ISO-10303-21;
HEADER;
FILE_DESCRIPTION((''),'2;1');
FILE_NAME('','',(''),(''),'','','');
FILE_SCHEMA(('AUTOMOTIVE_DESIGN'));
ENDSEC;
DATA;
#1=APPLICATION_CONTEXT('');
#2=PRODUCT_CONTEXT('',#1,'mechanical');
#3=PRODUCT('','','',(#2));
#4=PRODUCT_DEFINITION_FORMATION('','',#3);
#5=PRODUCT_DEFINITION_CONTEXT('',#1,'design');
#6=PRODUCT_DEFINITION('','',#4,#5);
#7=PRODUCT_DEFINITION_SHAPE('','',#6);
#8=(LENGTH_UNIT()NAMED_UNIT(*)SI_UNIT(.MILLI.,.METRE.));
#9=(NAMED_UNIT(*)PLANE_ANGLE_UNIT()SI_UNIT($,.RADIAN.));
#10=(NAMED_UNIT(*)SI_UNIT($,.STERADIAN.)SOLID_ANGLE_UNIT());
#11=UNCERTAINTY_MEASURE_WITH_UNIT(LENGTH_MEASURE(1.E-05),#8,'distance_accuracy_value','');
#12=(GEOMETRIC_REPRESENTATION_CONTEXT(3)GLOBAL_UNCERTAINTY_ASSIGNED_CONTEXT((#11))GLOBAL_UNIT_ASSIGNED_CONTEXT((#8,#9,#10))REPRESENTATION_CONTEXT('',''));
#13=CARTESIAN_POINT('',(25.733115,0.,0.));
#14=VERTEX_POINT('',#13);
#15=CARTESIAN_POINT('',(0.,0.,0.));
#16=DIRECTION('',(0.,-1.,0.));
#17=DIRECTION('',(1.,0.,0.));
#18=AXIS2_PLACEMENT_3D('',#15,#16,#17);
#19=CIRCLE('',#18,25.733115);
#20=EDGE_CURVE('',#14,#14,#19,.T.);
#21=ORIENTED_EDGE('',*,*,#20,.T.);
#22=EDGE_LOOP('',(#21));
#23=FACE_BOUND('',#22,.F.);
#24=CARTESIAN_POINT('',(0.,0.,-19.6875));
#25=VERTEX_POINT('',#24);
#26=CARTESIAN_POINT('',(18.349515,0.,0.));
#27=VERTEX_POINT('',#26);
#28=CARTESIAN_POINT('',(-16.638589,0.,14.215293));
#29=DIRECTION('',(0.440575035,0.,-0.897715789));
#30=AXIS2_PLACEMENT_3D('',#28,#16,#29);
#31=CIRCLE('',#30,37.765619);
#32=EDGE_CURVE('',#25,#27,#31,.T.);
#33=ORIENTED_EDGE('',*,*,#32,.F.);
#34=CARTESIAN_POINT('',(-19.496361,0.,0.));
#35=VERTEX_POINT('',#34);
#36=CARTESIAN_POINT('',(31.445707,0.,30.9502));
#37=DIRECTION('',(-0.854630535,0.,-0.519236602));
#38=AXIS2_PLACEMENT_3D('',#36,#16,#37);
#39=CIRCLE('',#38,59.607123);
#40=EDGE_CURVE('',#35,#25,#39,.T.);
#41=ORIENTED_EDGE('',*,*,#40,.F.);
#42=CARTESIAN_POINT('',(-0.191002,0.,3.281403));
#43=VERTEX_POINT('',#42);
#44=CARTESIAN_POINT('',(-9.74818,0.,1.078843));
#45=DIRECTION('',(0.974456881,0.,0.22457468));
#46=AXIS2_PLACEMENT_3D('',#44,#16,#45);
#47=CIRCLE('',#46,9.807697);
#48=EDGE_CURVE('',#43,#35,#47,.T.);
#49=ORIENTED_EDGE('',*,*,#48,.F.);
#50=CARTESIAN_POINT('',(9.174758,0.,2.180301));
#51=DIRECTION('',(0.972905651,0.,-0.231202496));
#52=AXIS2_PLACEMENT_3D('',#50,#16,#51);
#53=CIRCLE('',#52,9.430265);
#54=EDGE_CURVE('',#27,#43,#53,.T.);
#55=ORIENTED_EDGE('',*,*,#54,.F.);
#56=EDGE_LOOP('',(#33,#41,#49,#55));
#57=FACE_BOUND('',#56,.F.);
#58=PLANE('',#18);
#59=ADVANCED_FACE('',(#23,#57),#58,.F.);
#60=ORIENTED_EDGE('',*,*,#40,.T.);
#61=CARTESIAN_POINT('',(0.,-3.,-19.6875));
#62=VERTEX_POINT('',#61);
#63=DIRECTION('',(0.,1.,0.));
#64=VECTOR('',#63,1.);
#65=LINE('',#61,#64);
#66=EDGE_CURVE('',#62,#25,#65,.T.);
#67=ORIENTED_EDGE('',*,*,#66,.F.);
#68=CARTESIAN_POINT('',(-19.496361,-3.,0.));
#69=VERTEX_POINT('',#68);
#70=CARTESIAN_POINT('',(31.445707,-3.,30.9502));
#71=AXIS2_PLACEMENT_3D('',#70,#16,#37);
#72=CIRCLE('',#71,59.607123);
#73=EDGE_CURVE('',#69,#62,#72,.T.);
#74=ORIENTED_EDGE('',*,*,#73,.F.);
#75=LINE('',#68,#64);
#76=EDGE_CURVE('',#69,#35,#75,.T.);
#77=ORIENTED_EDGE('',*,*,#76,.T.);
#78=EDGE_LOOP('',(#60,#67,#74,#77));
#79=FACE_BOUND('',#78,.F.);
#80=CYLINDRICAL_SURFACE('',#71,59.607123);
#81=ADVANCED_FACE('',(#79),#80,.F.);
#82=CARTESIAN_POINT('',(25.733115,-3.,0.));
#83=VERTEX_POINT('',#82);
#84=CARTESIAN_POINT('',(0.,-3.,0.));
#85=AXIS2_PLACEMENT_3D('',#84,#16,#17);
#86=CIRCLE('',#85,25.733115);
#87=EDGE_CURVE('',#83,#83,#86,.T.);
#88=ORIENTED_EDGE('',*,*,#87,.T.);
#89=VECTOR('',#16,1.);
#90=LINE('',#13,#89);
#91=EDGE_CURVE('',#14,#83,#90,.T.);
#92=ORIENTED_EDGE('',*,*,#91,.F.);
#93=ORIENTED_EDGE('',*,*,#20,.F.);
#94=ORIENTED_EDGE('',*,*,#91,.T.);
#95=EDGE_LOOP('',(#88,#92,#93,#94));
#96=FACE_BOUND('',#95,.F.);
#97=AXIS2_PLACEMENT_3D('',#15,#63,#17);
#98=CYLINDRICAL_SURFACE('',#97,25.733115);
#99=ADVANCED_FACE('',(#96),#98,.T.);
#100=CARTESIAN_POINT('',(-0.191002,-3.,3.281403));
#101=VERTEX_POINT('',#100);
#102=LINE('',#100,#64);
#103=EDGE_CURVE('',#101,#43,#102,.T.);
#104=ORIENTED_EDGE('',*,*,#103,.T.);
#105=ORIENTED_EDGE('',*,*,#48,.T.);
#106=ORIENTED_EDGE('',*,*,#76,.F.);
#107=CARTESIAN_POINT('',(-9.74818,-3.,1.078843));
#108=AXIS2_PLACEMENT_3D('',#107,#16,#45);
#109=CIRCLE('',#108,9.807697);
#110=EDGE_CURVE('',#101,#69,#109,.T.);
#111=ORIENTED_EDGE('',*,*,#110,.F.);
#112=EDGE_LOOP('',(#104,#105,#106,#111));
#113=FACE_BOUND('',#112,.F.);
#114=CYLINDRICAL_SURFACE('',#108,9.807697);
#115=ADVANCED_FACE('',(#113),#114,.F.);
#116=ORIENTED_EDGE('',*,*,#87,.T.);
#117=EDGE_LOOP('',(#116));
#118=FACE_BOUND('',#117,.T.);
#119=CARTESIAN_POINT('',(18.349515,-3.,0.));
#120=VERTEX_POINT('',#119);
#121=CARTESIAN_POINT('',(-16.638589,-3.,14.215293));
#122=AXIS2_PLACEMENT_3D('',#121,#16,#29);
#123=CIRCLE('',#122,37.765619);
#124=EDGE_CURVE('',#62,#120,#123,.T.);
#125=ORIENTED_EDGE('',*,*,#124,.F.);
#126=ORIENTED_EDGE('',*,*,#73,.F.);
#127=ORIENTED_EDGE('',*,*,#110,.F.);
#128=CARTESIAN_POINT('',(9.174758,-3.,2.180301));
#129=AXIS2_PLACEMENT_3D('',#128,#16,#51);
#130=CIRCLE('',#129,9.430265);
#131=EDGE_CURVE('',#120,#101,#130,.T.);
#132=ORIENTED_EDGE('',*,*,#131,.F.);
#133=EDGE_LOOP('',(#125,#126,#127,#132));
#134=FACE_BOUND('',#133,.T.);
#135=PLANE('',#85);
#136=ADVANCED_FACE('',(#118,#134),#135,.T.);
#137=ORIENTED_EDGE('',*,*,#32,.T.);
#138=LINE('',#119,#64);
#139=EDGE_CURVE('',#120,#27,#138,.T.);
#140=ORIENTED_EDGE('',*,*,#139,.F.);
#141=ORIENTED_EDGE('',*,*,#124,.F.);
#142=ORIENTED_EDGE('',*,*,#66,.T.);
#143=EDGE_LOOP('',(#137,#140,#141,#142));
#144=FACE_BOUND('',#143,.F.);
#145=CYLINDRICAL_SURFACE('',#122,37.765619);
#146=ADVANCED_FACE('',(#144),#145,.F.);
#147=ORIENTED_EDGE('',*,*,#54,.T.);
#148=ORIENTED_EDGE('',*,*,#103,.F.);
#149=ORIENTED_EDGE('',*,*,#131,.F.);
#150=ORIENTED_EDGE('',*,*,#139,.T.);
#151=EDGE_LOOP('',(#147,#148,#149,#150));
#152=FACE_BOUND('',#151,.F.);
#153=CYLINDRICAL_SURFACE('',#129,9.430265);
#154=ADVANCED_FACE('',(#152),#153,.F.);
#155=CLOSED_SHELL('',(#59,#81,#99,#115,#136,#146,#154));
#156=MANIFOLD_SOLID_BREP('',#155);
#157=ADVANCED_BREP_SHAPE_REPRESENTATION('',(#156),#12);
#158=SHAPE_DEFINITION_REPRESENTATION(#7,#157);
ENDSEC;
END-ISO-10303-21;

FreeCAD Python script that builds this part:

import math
import FreeCAD as App
import Part
import Sketcher
Q = App.Units.Quantity

doc = App.newDocument("Part")
body = doc.addObject("PartDesign::Body", "Body")

# Sketch on XZ plane
sketch1 = body.newObject("Sketcher::SketchObject", "Sketch")
sketch1.AttachmentSupport = (doc.getObject("XZ_Plane"), [""])
sketch1.MapMode = "FlatFace"
sketch1.addGeometry(Part.Circle(App.Vector(0, 0, 0), App.Vector(0, 0, 1), 26), False)
sketch1.addConstraint(Sketcher.Constraint("Coincident", 0, 3, -1, 1))
sketch1.addConstraint(Sketcher.Constraint("Diameter", 0, Q("51.466229 mm")))
pad1 = body.newObject("PartDesign::Pad", "Pad")
pad1.Profile = sketch1
pad1.Length = 3

# Sketch on XZ plane
sketch2 = body.newObject("Sketcher::SketchObject", "Sketch001")
sketch2.AttachmentSupport = (doc.getObject("XZ_Plane"), [""])
sketch2.MapMode = "FlatFace"
sketch2.AttachmentOffset = App.Placement(App.Vector(0, 0, 3), App.Rotation())
sketch2.addGeometry(Part.ArcOfCircle(Part.Circle(App.Vector(-10, 1, 0), App.Vector(0, 0, 1), 10), math.radians(13), math.radians(186)), False)
sketch2.addGeometry(Part.ArcOfCircle(Part.Circle(App.Vector(31, 31, 0), App.Vector(0, 0, 1), 60), math.radians(-149), math.radians(-122)), False)
sketch2.addGeometry(Part.ArcOfCircle(Part.Circle(App.Vector(-17, 14, 0), App.Vector(0, 0, 1), 38), math.radians(-64), math.radians(-22)), False)
sketch2.addGeometry(Part.ArcOfCircle(Part.Circle(App.Vector(9, 2, 0), App.Vector(0, 0, 1), 9), math.radians(-13), math.radians(173)), False)
sketch2.addConstraint(Sketcher.Constraint("Coincident", 0, 2, 1, 1))
sketch2.addConstraint(Sketcher.Constraint("Coincident", 1, 2, 2, 1))
sketch2.addConstraint(Sketcher.Constraint("Coincident", 2, 2, 3, 1))
sketch2.addConstraint(Sketcher.Constraint("Coincident", 3, 2, 0, 1))
sketch2.addConstraint(Sketcher.Constraint("PointOnObject", 0, 2, -1))
sketch2.addConstraint(Sketcher.Constraint("PointOnObject", 1, 2, -2))
sketch2.addConstraint(Sketcher.Constraint("PointOnObject", 2, 2, -1))
sketch2.addConstraint(Sketcher.Constraint("Radius", 2, Q("37.765619 mm")))
sketch2.addConstraint(Sketcher.Constraint("Radius", 0, Q("9.807697 mm")))
sketch2.addConstraint(Sketcher.Constraint("Radius", 1, Q("59.607123 mm")))
sketch2.addConstraint(Sketcher.Constraint("Radius", 3, Q("9.430265 mm")))
sketch2.addConstraint(Sketcher.Constraint("DistanceY", -1, 1, 1, 3, Q("30.9502 mm")))
sketch2.addConstraint(Sketcher.Constraint("DistanceY", -1, 1, 3, 3, Q("2.180301 mm")))
sketch2.addConstraint(Sketcher.Constraint("DistanceY", 1, 2, -1, 1, Q("19.6875 mm")))
sketch2.addConstraint(Sketcher.Constraint("DistanceX", 0, 3, -1, 1, Q("9.74818 mm")))
sketch2.addConstraint(Sketcher.Constraint("DistanceX", 2, 3, -1, 1, Q("16.638589 mm")))
pocket1 = body.newObject("PartDesign::Pocket", "Pocket")
pocket1.Profile = sketch2
pocket1.Length = 25

doc.recompute()
